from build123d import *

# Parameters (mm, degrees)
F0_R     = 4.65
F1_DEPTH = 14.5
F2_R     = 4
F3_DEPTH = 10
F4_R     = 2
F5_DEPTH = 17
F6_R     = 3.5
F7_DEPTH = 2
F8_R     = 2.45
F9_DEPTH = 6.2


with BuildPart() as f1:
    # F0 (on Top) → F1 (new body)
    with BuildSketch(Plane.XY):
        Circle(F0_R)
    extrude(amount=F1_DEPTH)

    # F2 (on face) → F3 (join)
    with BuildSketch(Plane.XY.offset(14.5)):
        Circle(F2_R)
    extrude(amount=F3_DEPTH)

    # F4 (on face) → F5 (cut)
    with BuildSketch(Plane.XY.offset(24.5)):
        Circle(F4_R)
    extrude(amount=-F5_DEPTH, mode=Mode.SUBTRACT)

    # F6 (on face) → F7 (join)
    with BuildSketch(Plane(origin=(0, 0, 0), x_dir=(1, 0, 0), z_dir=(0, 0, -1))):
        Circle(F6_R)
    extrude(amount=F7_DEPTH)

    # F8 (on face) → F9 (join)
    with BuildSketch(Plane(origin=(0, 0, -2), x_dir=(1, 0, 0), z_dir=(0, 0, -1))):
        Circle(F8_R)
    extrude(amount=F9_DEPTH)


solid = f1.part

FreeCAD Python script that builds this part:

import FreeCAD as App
import Part
import Sketcher

V = App.Vector
Q = App.Units.Quantity

doc = App.newDocument("Part")
body = doc.addObject("PartDesign::Body", "Body")

# Sketch on XY plane
sketch1 = body.newObject("Sketcher::SketchObject", "Sketch")
sketch1.AttachmentSupport = (doc.getObject("XY_Plane"), [""])
sketch1.MapMode = "FlatFace"
sketch1.addGeometry(Part.Circle(V(0, 0, 0), V(0, 0, 1), 4.65), False)
sketch1.addConstraint(Sketcher.Constraint("Coincident", 0, 3, -1, 1))
sketch1.addConstraint(Sketcher.Constraint("Diameter", 0, Q("9.3 mm")))
pad1 = body.newObject("PartDesign::Pad", "Pad")
pad1.Profile = sketch1
pad1.Length = 14.5

# Sketch on XY plane
sketch2 = body.newObject("Sketcher::SketchObject", "Sketch001")
sketch2.AttachmentSupport = (doc.getObject("XY_Plane"), [""])
sketch2.MapMode = "FlatFace"
sketch2.AttachmentOffset = App.Placement(V(0, 0, 14.5), App.Rotation())
sketch2.addGeometry(Part.Circle(V(0, 0, 0), V(0, 0, 1), 4), False)
sketch2.addConstraint(Sketcher.Constraint("Coincident", 0, 3, -1, 1))
sketch2.addConstraint(Sketcher.Constraint("Diameter", 0, Q("8 mm")))
pad2 = body.newObject("PartDesign::Pad", "Pad001")
pad2.Profile = sketch2
pad2.Length = 10

# Sketch on XY plane
sketch3 = body.newObject("Sketcher::SketchObject", "Sketch002")
sketch3.AttachmentSupport = (doc.getObject("XY_Plane"), [""])
sketch3.MapMode = "FlatFace"
sketch3.AttachmentOffset = App.Placement(V(0, 0, 24.5), App.Rotation())
sketch3.addGeometry(Part.Circle(V(0, 0, 0), V(0, 0, 1), 2), False)
sketch3.addConstraint(Sketcher.Constraint("Coincident", 0, 3, -1, 1))
sketch3.addConstraint(Sketcher.Constraint("Diameter", 0, Q("4 mm")))
pocket1 = body.newObject("PartDesign::Pocket", "Pocket")
pocket1.Profile = sketch3
pocket1.Length = 17

# Sketch on XY plane
sketch4 = body.newObject("Sketcher::SketchObject", "Sketch003")
sketch4.AttachmentSupport = (doc.getObject("XY_Plane"), [""])
sketch4.MapMode = "FlatFace"
sketch4.addGeometry(Part.Circle(V(0, 0, 0), V(0, 0, 1), 3.5), False)
sketch4.addConstraint(Sketcher.Constraint("Coincident", 0, 3, -1, 1))
sketch4.addConstraint(Sketcher.Constraint("Diameter", 0, Q("7 mm")))
pad3 = body.newObject("PartDesign::Pad", "Pad002")
pad3.Profile = sketch4
pad3.Length = 2
pad3.Reversed = True

# Sketch on XY plane
sketch5 = body.newObject("Sketcher::SketchObject", "Sketch004")
sketch5.AttachmentSupport = (doc.getObject("XY_Plane"), [""])
sketch5.MapMode = "FlatFace"
sketch5.AttachmentOffset = App.Placement(V(0, 0, -2), App.Rotation())
sketch5.addGeometry(Part.Circle(V(0, 0, 0), V(0, 0, 1), 2.45), False)
sketch5.addConstraint(Sketcher.Constraint("Coincident", 0, 3, -1, 1))
sketch5.addConstraint(Sketcher.Constraint("Diameter", 0, Q("4.9 mm")))
pad4 = body.newObject("PartDesign::Pad", "Pad003")
pad4.Profile = sketch5
pad4.Length = 6.2
pad4.Reversed = True

doc.recompute()
